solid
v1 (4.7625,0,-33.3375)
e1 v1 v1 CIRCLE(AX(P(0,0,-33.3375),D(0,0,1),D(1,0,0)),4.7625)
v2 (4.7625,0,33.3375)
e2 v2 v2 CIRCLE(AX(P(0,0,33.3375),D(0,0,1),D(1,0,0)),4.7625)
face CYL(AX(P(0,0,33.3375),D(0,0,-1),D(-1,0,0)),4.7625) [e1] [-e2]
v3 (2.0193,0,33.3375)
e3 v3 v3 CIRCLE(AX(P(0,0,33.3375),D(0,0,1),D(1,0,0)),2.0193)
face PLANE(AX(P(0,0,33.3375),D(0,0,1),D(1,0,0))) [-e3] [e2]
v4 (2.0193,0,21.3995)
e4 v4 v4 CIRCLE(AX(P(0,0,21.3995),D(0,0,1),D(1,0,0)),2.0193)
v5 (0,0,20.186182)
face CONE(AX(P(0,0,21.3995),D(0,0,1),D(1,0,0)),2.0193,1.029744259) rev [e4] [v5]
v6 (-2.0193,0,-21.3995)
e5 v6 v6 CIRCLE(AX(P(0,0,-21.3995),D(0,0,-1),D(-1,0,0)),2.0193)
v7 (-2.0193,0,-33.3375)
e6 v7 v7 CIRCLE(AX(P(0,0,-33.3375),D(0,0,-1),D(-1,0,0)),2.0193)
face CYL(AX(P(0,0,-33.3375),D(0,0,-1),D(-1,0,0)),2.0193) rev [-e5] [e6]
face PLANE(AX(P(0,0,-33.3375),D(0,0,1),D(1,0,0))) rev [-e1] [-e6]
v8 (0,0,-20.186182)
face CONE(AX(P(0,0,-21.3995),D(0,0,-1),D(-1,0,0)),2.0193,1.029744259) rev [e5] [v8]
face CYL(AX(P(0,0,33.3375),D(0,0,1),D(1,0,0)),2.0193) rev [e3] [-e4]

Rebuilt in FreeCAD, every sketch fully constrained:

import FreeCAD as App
import Part
import Sketcher

V = App.Vector
Q = App.Units.Quantity

doc = App.newDocument("Part")
body = doc.addObject("PartDesign::Body", "Body")

# Sketch on XY plane
sketch1 = body.newObject("Sketcher::SketchObject", "Sketch")
sketch1.AttachmentSupport = (doc.getObject("XY_Plane"), [""])
sketch1.MapMode = "FlatFace"
sketch1.addGeometry(Part.Circle(V(0, 0, 0), V(0, 0, 1), 4.8), False)
sketch1.addConstraint(Sketcher.Constraint("Coincident", 0, 3, -1, 1))
sketch1.addConstraint(Sketcher.Constraint("Diameter", 0, Q("0.375 in")))
pad1 = body.newObject("PartDesign::Pad", "Pad")
pad1.Profile = sketch1
pad1.Length = Q("2.625 in")
pad1.Midplane = True

# Sketch on XY plane
sketch2 = body.newObject("Sketcher::SketchObject", "Sketch001")
sketch2.AttachmentSupport = (doc.getObject("XY_Plane"), [""])
sketch2.MapMode = "FlatFace"
sketch2.AttachmentOffset = App.Placement(V(0, 0, 1.3125 * 25.4), App.Rotation())
sketch2.addGeometry(Part.Circle(V(0, 0, 0), V(0, 0, 1), 2), False)
sketch2.addConstraint(Sketcher.Constraint("Coincident", 0, 3, -1, 1))
sketch2.addConstraint(Sketcher.Constraint("Diameter", 0, Q("0.159 in")))
doc.recompute()
hole = body.newObject("PartDesign::Hole", "Hole")
hole.Profile = sketch2
hole.ThreadType = "None"
hole.Diameter = Q("0.159 in")
hole.DepthType = "Dimension"
hole.Depth = Q("0.47 in")
hole.DrillPoint = "Angled"
hole.DrillPointAngle = 118

# Sketch on XY plane
sketch3 = body.newObject("Sketcher::SketchObject", "Sketch002")
sketch3.AttachmentSupport = (doc.getObject("XY_Plane"), [""])
sketch3.MapMode = "FlatFace"
sketch3.AttachmentOffset = App.Placement(V(0, 0, -1.3125 * 25.4), App.Rotation())
sketch3.addGeometry(Part.Circle(V(0, 0, 0), V(0, 0, 1), 2), False)
sketch3.addConstraint(Sketcher.Constraint("Coincident", 0, 3, -1, 1))
sketch3.addConstraint(Sketcher.Constraint("Diameter", 0, Q("0.159 in")))
doc.recompute()
hole2 = body.newObject("PartDesign::Hole", "Hole001")
hole2.Profile = sketch3
hole2.ThreadType = "None"
hole2.Diameter = Q("0.159 in")
hole2.DepthType = "Dimension"
hole2.Depth = Q("0.47 in")
hole2.DrillPoint = "Angled"
hole2.DrillPointAngle = 118
hole2.Reversed = True

doc.recompute()
